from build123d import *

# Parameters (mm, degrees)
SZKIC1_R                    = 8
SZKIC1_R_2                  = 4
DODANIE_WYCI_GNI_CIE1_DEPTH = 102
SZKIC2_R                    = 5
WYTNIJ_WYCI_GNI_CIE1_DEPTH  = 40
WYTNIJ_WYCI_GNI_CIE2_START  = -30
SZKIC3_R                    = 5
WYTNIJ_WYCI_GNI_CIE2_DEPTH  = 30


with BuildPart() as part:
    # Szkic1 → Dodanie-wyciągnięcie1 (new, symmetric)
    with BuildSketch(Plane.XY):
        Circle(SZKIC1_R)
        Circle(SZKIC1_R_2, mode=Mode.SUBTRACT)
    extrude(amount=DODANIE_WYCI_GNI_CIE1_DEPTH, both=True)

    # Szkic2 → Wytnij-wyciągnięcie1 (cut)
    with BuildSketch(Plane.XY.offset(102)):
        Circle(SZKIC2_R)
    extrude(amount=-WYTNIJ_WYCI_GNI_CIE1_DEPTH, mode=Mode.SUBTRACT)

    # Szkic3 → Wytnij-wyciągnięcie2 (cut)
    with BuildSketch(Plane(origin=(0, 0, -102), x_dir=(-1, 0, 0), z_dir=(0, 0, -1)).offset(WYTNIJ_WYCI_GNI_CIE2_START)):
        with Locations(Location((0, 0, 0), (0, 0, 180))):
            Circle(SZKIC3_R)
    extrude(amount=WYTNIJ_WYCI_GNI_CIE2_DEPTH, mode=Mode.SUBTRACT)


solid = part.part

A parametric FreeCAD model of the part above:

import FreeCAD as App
import Part
import Sketcher

V = App.Vector

doc = App.newDocument("Part")
body = doc.addObject("PartDesign::Body", "Body")

sketch1 = body.newObject("Sketcher::SketchObject", "Sketch")
sketch1.AttachmentSupport = (doc.getObject("XY_Plane"), [""])
sketch1.MapMode = "FlatFace"
sketch1.addGeometry([
    Part.Circle(V(0, 0, 0), V(0, 0, 1), 8),
    Part.Circle(V(0, 0, 0), V(0, 0, 1), 4),
], False)
sketch1.addConstraint([
    Sketcher.Constraint("Coincident", 0, 3, -1, 1),
    Sketcher.Constraint("Coincident", 1, 3, -1, 1),
    Sketcher.Constraint("Diameter", 0, 16.0),
    Sketcher.Constraint("Diameter", 1, 8.0),
])
pad1 = body.newObject("PartDesign::Pad", "Pad")
pad1.Profile = sketch1
pad1.Length = 204
pad1.Midplane = True

sketch2 = body.newObject("Sketcher::SketchObject", "Sketch001")
sketch2.AttachmentSupport = (doc.getObject("XY_Plane"), [""])
sketch2.MapMode = "FlatFace"
sketch2.AttachmentOffset = App.Placement(V(0, 0, 102), App.Rotation())
sketch2.addGeometry(Part.Circle(V(0, 0, 0), V(0, 0, 1), 5), False)
sketch2.addConstraint([
    Sketcher.Constraint("Coincident", 0, 3, -1, 1),
    Sketcher.Constraint("Diameter", 0, 10.0),
])
pocket1 = body.newObject("PartDesign::Pocket", "Pocket")
pocket1.Profile = sketch2
pocket1.Length = 40

sketch3 = body.newObject("Sketcher::SketchObject", "Sketch002")
sketch3.AttachmentSupport = (doc.getObject("XY_Plane"), [""])
sketch3.MapMode = "FlatFace"
sketch3.AttachmentOffset = App.Placement(V(0, 0, -72), App.Rotation())
sketch3.addGeometry(Part.Circle(V(0, 0, 0), V(0, 0, 1), 5), False)
sketch3.addConstraint([
    Sketcher.Constraint("Coincident", 0, 3, -1, 1),
    Sketcher.Constraint("Diameter", 0, 10.0),
])
pocket2 = body.newObject("PartDesign::Pocket", "Pocket001")
pocket2.Profile = sketch3
pocket2.Length = 30

doc.recompute()
